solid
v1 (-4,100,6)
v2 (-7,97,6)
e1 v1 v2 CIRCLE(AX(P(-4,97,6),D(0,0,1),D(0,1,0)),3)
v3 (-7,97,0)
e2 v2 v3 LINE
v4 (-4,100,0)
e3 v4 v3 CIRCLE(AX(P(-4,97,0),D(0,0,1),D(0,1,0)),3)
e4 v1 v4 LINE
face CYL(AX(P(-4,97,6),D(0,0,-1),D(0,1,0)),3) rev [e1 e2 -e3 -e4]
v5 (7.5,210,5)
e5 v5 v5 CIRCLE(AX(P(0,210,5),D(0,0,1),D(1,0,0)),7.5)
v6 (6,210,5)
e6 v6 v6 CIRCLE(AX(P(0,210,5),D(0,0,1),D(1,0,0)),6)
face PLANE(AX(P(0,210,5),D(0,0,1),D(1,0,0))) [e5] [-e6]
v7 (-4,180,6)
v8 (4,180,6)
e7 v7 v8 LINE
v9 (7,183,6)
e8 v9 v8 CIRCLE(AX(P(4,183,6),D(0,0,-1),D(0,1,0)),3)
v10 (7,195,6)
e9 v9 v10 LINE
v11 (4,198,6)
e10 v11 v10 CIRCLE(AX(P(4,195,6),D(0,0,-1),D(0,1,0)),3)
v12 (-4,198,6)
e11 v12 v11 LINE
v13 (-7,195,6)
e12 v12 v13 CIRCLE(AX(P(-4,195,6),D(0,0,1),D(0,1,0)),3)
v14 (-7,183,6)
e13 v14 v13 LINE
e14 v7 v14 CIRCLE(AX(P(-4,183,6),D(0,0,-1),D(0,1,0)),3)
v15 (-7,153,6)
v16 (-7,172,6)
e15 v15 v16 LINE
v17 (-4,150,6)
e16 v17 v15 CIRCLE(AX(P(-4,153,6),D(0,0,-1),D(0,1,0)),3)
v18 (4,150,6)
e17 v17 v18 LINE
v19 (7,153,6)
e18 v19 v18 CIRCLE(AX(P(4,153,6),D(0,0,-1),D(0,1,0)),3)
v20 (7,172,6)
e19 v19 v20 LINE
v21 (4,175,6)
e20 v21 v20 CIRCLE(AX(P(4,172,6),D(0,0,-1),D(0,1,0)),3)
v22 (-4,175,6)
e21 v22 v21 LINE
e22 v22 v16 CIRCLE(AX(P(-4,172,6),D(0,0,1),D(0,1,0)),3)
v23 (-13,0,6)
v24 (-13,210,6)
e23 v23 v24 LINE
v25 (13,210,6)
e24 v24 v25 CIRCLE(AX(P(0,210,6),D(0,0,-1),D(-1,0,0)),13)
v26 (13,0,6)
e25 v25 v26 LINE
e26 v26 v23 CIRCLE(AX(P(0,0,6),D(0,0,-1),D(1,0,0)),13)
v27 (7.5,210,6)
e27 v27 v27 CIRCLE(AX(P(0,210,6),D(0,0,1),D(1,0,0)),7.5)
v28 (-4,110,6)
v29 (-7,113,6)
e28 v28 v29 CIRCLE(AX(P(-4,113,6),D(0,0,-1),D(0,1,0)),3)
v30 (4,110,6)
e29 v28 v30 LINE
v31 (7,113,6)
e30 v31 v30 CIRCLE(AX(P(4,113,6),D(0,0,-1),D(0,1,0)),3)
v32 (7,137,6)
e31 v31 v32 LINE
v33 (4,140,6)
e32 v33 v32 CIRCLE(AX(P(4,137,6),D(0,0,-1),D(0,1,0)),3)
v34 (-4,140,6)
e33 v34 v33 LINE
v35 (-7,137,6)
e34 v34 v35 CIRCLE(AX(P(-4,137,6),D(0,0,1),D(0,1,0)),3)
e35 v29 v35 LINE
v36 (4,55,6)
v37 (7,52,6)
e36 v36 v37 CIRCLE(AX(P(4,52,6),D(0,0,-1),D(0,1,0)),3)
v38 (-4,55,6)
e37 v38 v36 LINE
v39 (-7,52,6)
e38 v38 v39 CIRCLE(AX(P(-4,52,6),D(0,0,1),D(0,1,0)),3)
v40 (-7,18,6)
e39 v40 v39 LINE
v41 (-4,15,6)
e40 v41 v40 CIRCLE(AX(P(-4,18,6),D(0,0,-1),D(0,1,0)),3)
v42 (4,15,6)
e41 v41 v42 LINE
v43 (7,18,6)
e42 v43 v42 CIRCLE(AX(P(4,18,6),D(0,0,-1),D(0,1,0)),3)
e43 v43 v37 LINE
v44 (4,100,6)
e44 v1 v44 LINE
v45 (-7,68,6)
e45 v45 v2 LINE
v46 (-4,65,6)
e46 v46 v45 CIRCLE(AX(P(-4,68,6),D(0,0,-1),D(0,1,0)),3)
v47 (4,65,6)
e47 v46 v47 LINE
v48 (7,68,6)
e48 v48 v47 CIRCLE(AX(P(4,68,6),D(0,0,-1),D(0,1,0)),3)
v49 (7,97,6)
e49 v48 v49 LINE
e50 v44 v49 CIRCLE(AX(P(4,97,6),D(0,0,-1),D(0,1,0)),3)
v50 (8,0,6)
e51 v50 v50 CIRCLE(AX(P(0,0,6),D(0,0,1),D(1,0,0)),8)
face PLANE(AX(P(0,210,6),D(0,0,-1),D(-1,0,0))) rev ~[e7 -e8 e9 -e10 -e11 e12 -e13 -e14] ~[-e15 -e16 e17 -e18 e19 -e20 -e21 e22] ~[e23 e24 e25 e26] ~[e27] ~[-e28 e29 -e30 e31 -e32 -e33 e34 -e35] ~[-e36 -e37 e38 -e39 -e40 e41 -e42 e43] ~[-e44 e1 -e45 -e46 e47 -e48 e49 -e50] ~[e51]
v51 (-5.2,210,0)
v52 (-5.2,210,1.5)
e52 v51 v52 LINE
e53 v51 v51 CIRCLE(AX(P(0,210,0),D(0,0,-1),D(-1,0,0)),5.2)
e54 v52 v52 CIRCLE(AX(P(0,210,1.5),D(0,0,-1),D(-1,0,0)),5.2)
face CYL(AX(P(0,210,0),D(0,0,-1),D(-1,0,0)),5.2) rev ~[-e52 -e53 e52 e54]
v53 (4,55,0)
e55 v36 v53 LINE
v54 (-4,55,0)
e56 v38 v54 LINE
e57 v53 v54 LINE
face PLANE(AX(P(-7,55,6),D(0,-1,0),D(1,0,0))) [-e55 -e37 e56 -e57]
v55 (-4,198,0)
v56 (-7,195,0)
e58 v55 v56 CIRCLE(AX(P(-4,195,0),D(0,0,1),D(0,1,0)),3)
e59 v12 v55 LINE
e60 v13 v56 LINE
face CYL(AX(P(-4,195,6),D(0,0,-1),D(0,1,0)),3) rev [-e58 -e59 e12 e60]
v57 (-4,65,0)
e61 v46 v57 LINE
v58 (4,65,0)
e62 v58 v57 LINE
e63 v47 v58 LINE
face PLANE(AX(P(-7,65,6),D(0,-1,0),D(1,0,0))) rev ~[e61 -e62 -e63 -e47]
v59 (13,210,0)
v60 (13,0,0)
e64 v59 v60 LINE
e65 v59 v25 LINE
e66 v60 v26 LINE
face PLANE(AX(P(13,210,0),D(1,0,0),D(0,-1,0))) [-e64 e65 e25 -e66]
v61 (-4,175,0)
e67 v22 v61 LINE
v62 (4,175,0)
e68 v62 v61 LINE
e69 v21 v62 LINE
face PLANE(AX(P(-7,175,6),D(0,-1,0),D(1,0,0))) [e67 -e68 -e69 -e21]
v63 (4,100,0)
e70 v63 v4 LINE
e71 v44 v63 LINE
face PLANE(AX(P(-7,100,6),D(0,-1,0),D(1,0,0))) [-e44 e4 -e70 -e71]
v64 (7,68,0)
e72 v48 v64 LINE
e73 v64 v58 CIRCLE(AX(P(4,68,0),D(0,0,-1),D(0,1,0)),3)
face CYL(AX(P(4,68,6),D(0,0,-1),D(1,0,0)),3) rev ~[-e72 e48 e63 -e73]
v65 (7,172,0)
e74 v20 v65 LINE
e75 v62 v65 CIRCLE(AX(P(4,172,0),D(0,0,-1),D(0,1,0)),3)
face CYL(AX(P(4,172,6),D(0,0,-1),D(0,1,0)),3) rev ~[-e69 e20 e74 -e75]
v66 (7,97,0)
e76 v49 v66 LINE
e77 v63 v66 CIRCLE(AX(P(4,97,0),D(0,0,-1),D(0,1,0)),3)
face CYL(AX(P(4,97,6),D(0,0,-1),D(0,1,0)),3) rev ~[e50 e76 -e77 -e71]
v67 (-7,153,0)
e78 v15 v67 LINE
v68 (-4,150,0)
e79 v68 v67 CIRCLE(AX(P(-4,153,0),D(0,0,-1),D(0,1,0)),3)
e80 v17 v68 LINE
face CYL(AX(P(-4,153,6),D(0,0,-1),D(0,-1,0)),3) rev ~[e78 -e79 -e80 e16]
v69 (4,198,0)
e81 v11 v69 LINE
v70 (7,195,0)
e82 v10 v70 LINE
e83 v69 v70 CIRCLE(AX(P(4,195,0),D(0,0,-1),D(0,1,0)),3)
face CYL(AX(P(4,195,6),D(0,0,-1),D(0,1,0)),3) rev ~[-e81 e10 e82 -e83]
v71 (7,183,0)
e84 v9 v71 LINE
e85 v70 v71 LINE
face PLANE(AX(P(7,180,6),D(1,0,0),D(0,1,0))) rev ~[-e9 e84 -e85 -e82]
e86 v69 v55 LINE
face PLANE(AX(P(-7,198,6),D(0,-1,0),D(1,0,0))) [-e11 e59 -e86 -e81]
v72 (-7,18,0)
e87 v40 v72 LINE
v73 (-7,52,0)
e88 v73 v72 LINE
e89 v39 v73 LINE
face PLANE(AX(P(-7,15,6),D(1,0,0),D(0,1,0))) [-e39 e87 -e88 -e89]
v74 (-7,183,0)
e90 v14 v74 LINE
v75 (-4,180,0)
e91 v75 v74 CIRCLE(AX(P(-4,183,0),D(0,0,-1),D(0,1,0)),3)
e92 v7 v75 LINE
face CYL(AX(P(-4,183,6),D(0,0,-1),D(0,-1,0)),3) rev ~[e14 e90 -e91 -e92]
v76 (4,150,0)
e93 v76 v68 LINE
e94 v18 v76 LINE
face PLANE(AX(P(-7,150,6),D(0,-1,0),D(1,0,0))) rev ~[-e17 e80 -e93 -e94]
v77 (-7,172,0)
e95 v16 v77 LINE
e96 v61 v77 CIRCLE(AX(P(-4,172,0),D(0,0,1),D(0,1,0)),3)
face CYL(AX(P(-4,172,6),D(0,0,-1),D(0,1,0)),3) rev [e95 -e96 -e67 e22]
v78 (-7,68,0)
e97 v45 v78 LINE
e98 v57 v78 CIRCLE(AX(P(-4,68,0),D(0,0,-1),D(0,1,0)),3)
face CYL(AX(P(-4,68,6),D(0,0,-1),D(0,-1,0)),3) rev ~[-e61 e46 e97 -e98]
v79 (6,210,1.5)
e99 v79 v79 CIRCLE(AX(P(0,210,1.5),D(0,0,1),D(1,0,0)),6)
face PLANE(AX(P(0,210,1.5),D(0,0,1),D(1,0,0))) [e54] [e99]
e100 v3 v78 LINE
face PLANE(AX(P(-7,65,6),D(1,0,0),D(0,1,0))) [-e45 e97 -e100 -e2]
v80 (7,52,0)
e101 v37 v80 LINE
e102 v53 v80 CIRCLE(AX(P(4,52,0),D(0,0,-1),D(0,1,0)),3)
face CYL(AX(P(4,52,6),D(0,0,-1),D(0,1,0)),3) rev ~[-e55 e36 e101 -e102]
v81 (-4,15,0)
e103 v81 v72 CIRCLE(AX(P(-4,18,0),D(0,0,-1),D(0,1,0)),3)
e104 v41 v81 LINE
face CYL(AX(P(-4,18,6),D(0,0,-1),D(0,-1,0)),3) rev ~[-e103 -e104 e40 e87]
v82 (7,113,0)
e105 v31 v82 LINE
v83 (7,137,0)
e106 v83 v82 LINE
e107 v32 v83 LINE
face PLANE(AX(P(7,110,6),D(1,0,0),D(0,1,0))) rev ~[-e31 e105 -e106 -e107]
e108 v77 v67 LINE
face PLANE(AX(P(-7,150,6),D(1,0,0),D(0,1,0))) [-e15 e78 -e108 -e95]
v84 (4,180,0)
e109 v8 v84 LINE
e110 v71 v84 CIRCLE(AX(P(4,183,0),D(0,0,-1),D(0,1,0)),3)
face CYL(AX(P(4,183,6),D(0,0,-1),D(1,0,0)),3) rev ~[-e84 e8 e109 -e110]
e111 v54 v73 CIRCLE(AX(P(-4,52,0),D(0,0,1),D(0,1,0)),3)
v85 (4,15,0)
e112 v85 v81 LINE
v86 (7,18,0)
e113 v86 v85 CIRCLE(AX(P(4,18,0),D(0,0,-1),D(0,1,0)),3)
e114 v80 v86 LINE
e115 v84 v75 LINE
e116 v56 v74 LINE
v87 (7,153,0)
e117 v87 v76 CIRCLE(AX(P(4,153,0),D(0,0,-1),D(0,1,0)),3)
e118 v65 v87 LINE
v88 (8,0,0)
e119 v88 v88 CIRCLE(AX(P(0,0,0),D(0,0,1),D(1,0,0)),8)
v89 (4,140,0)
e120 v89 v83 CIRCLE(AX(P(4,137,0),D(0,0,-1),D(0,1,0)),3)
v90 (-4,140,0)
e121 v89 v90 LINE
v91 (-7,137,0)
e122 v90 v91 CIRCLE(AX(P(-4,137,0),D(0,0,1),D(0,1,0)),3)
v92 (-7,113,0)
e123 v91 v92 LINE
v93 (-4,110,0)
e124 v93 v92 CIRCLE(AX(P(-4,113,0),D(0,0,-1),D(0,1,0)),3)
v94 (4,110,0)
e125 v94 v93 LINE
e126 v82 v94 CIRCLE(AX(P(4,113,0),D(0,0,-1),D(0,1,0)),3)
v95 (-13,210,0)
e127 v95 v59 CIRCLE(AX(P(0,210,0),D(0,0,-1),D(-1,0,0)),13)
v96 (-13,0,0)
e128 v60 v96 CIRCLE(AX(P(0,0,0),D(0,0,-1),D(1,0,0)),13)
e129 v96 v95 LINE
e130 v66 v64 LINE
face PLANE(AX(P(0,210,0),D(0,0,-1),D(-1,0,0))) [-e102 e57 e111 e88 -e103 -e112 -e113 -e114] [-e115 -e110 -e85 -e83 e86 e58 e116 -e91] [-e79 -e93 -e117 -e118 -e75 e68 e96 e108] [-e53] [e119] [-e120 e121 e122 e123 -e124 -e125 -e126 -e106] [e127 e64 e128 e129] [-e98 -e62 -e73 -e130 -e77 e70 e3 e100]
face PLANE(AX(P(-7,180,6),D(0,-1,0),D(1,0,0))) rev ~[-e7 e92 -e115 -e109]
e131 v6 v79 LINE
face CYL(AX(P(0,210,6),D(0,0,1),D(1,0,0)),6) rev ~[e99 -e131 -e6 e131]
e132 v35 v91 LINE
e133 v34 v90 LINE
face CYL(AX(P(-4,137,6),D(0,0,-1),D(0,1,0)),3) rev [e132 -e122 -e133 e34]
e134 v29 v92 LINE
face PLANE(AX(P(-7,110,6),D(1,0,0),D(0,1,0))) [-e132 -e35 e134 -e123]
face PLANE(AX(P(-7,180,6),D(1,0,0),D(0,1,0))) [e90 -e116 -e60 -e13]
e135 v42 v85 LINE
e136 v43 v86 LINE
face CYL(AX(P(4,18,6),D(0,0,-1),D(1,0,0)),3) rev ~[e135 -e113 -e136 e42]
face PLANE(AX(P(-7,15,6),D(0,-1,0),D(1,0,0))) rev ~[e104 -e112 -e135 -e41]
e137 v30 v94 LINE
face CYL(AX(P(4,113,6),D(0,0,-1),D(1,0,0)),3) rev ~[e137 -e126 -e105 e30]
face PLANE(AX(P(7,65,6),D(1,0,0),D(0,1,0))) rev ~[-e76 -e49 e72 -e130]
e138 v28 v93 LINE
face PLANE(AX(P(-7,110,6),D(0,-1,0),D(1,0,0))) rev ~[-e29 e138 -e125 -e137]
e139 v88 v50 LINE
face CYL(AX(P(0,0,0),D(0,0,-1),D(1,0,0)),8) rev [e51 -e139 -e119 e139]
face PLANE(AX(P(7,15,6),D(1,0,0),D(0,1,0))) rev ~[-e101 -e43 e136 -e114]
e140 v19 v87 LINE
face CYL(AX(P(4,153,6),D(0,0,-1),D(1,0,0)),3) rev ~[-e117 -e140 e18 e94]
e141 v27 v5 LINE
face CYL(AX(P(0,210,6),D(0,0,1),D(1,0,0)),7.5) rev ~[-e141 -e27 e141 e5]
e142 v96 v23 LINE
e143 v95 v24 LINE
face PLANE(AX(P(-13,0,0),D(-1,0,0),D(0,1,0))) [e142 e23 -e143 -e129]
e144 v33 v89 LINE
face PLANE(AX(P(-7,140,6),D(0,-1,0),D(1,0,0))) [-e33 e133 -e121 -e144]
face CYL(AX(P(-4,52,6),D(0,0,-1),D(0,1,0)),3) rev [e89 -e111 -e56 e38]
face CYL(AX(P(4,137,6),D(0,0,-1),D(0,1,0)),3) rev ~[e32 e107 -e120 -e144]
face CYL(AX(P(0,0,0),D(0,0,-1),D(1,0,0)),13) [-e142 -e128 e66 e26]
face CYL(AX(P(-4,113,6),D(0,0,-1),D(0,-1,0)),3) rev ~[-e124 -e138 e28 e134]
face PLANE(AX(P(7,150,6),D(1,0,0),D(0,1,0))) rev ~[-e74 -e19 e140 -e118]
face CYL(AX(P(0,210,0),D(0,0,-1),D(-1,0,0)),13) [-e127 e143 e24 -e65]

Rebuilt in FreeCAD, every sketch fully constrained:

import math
import FreeCAD as App
import Part
import Sketcher
from FreeCAD import Vector
Q = App.Units.Quantity


def edges_at(feature, points):
    """Names of the edges that pass closest to the given points."""
    edges = feature.Shape.Edges
    near = lambda p: min(range(len(edges)), key=lambda i: edges[i].distToShape(Part.Vertex(*p))[0])
    return sorted({f"Edge{near(p) + 1}" for p in points})


def add_polygon(sketch, points):
    """Adds a closed chain of lines whose ends are joined by coincident constraints."""
    first, n = sketch.GeometryCount, len(points)
    for a, b in zip(points, points[1:] + points[:1]):
        sketch.addGeometry(Part.LineSegment(App.Vector(*a, 0), App.Vector(*b, 0)), False)
    for i in range(n):
        sketch.addConstraint(Sketcher.Constraint("Coincident", first + i, 2, first + (i + 1) % n, 1))

doc = App.newDocument("Part")
body = doc.addObject("PartDesign::Body", "Body")

sketch1 = doc.addObject("Sketcher::SketchObject", "Sketch")
body.addObject(sketch1)
sketch1.AttachmentSupport = (doc.XY_Plane, [""])
sketch1.MapMode = "FlatFace"
sketch1.addGeometry([
    Part.LineSegment(Vector(-13, 210, 0), Vector(-13, 0, 0)),
    Part.ArcOfCircle(Part.Circle(Vector(0, 0, 0), Vector(0, 0, 1), 13), math.radians(180), math.radians(360)),
    Part.LineSegment(Vector(13, 0, 0), Vector(13, 210, 0)),
    Part.ArcOfCircle(Part.Circle(Vector(0, 210, 0), Vector(0, 0, 1), 13), math.radians(0), math.radians(180)),
    Part.Circle(Vector(0, 0, 0), Vector(0, 0, 1), 8),
    Part.Circle(Vector(0, 210, 0), Vector(0, 0, 1), 8),
], False)
sketch1.addConstraint([
    Sketcher.Constraint("Tangent", 0, 2, 1, 1),
    Sketcher.Constraint("Tangent", 1, 2, 2, 1),
    Sketcher.Constraint("Tangent", 2, 2, 3, 1),
    Sketcher.Constraint("Tangent", 3, 2, 0, 1),
    Sketcher.Constraint("Vertical", 0),
    Sketcher.Constraint("Vertical", 2),
    Sketcher.Constraint("Coincident", 1, 3, -1, 1),
    Sketcher.Constraint("Coincident", 4, 3, -1, 1),
    Sketcher.Constraint("Coincident", 5, 3, 3, 3),
    Sketcher.Constraint("Equal", 4, 5),
    Sketcher.Constraint("Diameter", 4, Q("16 mm")),
    Sketcher.Constraint("Radius", 1, Q("13 mm")),
    Sketcher.Constraint("DistanceY", 0, 2, 0, 1, Q("210 mm")),
])
pad1 = doc.addObject("PartDesign::Pad", "Pad")
body.addObject(pad1)
pad1.Profile = sketch1
pad1.Length = 6

sketch2 = doc.addObject("Sketcher::SketchObject", "Sketch001")
body.addObject(sketch2)
sketch2.AttachmentSupport = (doc.XY_Plane, [""])
sketch2.MapMode = "FlatFace"
sketch2.AttachmentOffset = App.Placement(Vector(0, 0, 6), App.Rotation())
add_polygon(sketch2, [(-7, 175), (-7, 150), (7, 150), (7, 175)])
add_polygon(sketch2, [(-7, 140), (-7, 110), (7, 110), (7, 140)])
add_polygon(sketch2, [(-7, 100), (-7, 65), (7, 65), (7, 100)])
add_polygon(sketch2, [(-7, 55), (-7, 15), (7, 15), (7, 55)])
add_polygon(sketch2, [(-7, 198), (-7, 180), (7, 180), (7, 198)])
sketch2.addConstraint([
    Sketcher.Constraint("Vertical", 0),
    Sketcher.Constraint("Horizontal", 1),
    Sketcher.Constraint("Vertical", 2),
    Sketcher.Constraint("Horizontal", 3),
    Sketcher.Constraint("Vertical", 4),
    Sketcher.Constraint("Horizontal", 5),
    Sketcher.Constraint("Vertical", 6),
    Sketcher.Constraint("Horizontal", 7),
    Sketcher.Constraint("Vertical", 8),
    Sketcher.Constraint("Horizontal", 9),
    Sketcher.Constraint("Vertical", 10),
    Sketcher.Constraint("Horizontal", 11),
    Sketcher.Constraint("Vertical", 12),
    Sketcher.Constraint("Horizontal", 13),
    Sketcher.Constraint("Vertical", 14),
    Sketcher.Constraint("Horizontal", 15),
    Sketcher.Constraint("Vertical", 16),
    Sketcher.Constraint("Horizontal", 17),
    Sketcher.Constraint("Vertical", 18),
    Sketcher.Constraint("Horizontal", 19),
    Sketcher.Constraint("Vertical", 3, 2, 4, 2),
    Sketcher.Constraint("Vertical", 2, 2, 5, 2),
    Sketcher.Constraint("Vertical", 7, 2, 8, 2),
    Sketcher.Constraint("Vertical", 6, 2, 9, 2),
    Sketcher.Constraint("Vertical", 11, 2, 12, 2),
    Sketcher.Constraint("Vertical", 10, 2, 13, 2),
    Sketcher.Constraint("Vertical", 15, 2, 16, 2),
    Sketcher.Constraint("Vertical", 14, 2, 17, 2),
    Sketcher.Constraint("DistanceX", 1, 1, 1, 2, Q("14 mm")),
    Sketcher.Constraint("DistanceY", 0, 2, 0, 1, Q("25 mm")),
    Sketcher.Constraint("DistanceY", 4, 2, 4, 1, Q("30 mm")),
    Sketcher.Constraint("DistanceY", 8, 2, 8, 1, Q("35 mm")),
    Sketcher.Constraint("DistanceY", 12, 2, 12, 1, Q("40 mm")),
    Sketcher.Constraint("DistanceY", 16, 2, 16, 1, Q("18 mm")),
    Sketcher.Constraint("DistanceX", 0, 2, -1, 1, Q("7 mm")),
    Sketcher.Constraint("DistanceY", -1, 1, 0, 2, Q("150 mm")),
    Sketcher.Constraint("DistanceY", -1, 1, 4, 2, Q("110 mm")),
    Sketcher.Constraint("DistanceY", -1, 1, 8, 2, Q("65 mm")),
    Sketcher.Constraint("DistanceY", -1, 1, 12, 2, Q("15 mm")),
    Sketcher.Constraint("DistanceY", -1, 1, 16, 2, Q("180 mm")),
])
pocket1 = doc.addObject("PartDesign::Pocket", "Pocket")
body.addObject(pocket1)
pocket1.Profile = sketch2
pocket1.Type = "ThroughAll"
doc.recompute()

fillet = doc.addObject("PartDesign::Fillet", "Fillet")
body.addObject(fillet)
fillet.Base = (pocket1, edges_at(pocket1, [
    (7, 140, 3),
    (7, 110, 3),
    (-7, 110, 3),
    (-7, 140, 3),
    (7, 100, 3),
    (7, 65, 3),
    (-7, 65, 3),
    (-7, 100, 3),
    (7, 55, 3),
    (7, 15, 3),
    (-7, 15, 3),
    (-7, 55, 3),
    (7, 198, 3),
    (7, 180, 3),
    (-7, 180, 3),
    (-7, 198, 3),
    (7, 175, 3),
    (7, 150, 3),
    (-7, 150, 3),
    (-7, 175, 3),
]))
fillet.Radius = 3

sketch3 = doc.addObject("Sketcher::SketchObject", "Sketch002")
body.addObject(sketch3)
sketch3.AttachmentSupport = (doc.XY_Plane, [""])
sketch3.MapMode = "FlatFace"
sketch3.addGeometry([
    Part.Circle(Vector(0, 210, 0), Vector(0, 0, 1), 8),
    Part.Circle(Vector(0, 210, 0), Vector(0, 0, 1), 5),
], False)
sketch3.addConstraint([
    Sketcher.Constraint("Coincident", 1, 3, 0, 3),
    Sketcher.Constraint("PointOnObject", 0, 3, -2),
    Sketcher.Constraint("Diameter", 0, Q("16 mm")),
    Sketcher.Constraint("Diameter", 1, Q("10.4 mm")),
    Sketcher.Constraint("DistanceY", -1, 1, 0, 3, Q("210 mm")),
])
pad2 = doc.addObject("PartDesign::Pad", "Pad001")
body.addObject(pad2)
pad2.Profile = sketch3
pad2.Length = 6

sketch4 = doc.addObject("Sketcher::SketchObject", "Sketch003")
body.addObject(sketch4)
sketch4.AttachmentSupport = (doc.XY_Plane, [""])
sketch4.MapMode = "FlatFace"
sketch4.AttachmentOffset = App.Placement(Vector(0, 0, 6), App.Rotation())
sketch4.addGeometry(Part.Circle(Vector(0, 210, 0), Vector(0, 0, 1), 6), False)
sketch4.addConstraint([
    Sketcher.Constraint("PointOnObject", 0, 3, -2),
    Sketcher.Constraint("Diameter", 0, Q("12 mm")),
    Sketcher.Constraint("DistanceY", -1, 1, 0, 3, Q("210 mm")),
])
pocket2 = doc.addObject("PartDesign::Pocket", "Pocket001")
body.addObject(pocket2)
pocket2.Profile = sketch4
pocket2.Length = 4.5

sketch5 = doc.addObject("Sketcher::SketchObject", "Sketch004")
body.addObject(sketch5)
sketch5.AttachmentSupport = (doc.XY_Plane, [""])
sketch5.MapMode = "FlatFace"
sketch5.AttachmentOffset = App.Placement(Vector(0, 0, 6), App.Rotation())
sketch5.addGeometry(Part.Circle(Vector(0, 210, 0), Vector(0, 0, 1), 8), False)
sketch5.addConstraint([
    Sketcher.Constraint("PointOnObject", 0, 3, -2),
    Sketcher.Constraint("Diameter", 0, Q("15 mm")),
    Sketcher.Constraint("DistanceY", -1, 1, 0, 3, Q("210 mm")),
])
pocket3 = doc.addObject("PartDesign::Pocket", "Pocket002")
body.addObject(pocket3)
pocket3.Profile = sketch5
pocket3.Length = 1

doc.recompute()
